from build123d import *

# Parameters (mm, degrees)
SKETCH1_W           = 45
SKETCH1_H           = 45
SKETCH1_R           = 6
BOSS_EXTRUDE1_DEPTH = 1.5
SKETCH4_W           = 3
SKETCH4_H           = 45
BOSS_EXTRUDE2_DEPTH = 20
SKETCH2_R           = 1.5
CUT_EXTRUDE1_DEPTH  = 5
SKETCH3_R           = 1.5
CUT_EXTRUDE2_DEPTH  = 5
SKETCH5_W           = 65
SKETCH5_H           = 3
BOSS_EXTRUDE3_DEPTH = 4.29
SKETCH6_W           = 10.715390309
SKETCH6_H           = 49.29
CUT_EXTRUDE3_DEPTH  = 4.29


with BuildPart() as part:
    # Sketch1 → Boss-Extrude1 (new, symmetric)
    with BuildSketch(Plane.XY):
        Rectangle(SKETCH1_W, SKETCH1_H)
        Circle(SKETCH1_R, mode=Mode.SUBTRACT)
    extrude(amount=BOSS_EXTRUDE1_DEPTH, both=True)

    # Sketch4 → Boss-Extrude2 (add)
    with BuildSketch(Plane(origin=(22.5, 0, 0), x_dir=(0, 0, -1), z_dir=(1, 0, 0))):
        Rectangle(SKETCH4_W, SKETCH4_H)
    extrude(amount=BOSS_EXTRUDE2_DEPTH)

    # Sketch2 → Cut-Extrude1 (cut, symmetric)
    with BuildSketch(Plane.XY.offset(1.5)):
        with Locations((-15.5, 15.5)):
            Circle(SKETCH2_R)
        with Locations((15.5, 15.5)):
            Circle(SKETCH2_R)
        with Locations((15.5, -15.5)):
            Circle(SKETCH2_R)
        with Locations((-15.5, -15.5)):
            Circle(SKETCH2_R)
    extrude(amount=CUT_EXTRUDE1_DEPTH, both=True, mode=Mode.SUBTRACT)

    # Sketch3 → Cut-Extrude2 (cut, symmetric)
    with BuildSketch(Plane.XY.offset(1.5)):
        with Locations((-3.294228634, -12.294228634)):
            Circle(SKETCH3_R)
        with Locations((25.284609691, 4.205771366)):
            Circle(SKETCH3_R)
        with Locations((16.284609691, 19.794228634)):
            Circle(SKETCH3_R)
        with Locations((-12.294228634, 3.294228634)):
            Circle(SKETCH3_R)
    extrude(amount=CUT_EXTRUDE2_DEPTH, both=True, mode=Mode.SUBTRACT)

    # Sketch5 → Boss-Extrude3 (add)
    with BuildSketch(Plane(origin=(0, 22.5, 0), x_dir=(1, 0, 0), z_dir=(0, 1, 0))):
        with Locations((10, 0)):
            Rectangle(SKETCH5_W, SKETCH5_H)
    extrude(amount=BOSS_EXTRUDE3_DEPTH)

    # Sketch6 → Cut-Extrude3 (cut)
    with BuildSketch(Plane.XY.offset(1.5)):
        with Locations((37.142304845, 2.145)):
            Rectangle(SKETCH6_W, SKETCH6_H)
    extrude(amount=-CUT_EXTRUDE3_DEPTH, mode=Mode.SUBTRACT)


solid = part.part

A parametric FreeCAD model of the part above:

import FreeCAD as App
import Part
import Sketcher

doc = App.newDocument("Part")
body = doc.addObject("PartDesign::Body", "Body")

# Sketch on XY plane
sketch1 = doc.addObject("Sketcher::SketchObject", "Sketch")
body.addObject(sketch1)
sketch1.AttachmentSupport = (doc.XY_Plane, [""])
sketch1.MapMode = "FlatFace"
sketch1.addGeometry([
    Part.LineSegment(App.Vector(-22, 22, 0), App.Vector(-22, -22, 0)),  # 0
    Part.LineSegment(App.Vector(-22, -22, 0), App.Vector(22, -22, 0)),  # 1
    Part.LineSegment(App.Vector(22, -22, 0), App.Vector(22, 22, 0)),  # 2
    Part.LineSegment(App.Vector(22, 22, 0), App.Vector(-22, 22, 0)),  # 3
    Part.Circle(App.Vector(0, 0, 0), App.Vector(0, 0, 1), 6),  # 4
], False)
sketch1.addConstraint([
    Sketcher.Constraint("Coincident", 0, 2, 1, 1),
    Sketcher.Constraint("Coincident", 1, 2, 2, 1),
    Sketcher.Constraint("Coincident", 2, 2, 3, 1),
    Sketcher.Constraint("Coincident", 3, 2, 0, 1),
    Sketcher.Constraint("Vertical", 0),
    Sketcher.Constraint("Horizontal", 1),
    Sketcher.Constraint("Vertical", 2),
    Sketcher.Constraint("Horizontal", 3),
    Sketcher.Constraint("Coincident", 4, 3, -1, 1),
    Sketcher.Constraint("Symmetric", 0, 2, 2, 2, -1, 1),
    Sketcher.Constraint("Equal", 3, 0),
    Sketcher.Constraint("Diameter", 4, 12.0),
    Sketcher.Constraint("DistanceX", 1, 1, 1, 2, 45.0),
])
pad1 = doc.addObject("PartDesign::Pad", "Pad")
body.addObject(pad1)
pad1.Profile = sketch1
pad1.Length = 3
pad1.Midplane = True

# Sketch on YZ plane
sketch2 = doc.addObject("Sketcher::SketchObject", "Sketch001")
body.addObject(sketch2)
sketch2.AttachmentSupport = (doc.YZ_Plane, [""])
sketch2.MapMode = "FlatFace"
sketch2.AttachmentOffset = App.Placement(App.Vector(0, 0, 22.5), App.Rotation())
sketch2.addGeometry([
    Part.LineSegment(App.Vector(22.5, 1.5, 0), App.Vector(-22.5, 1.5, 0)),
    Part.LineSegment(App.Vector(-22.5, 1.5, 0), App.Vector(-22.5, -1.5, 0)),
    Part.LineSegment(App.Vector(-22.5, -1.5, 0), App.Vector(22.5, -1.5, 0)),
    Part.LineSegment(App.Vector(22.5, -1.5, 0), App.Vector(22.5, 1.5, 0)),
], False)
sketch2.addConstraint([
    Sketcher.Constraint("Coincident", 0, 2, 1, 1),
    Sketcher.Constraint("Coincident", 1, 2, 2, 1),
    Sketcher.Constraint("Coincident", 2, 2, 3, 1),
    Sketcher.Constraint("Coincident", 3, 2, 0, 1),
    Sketcher.Constraint("Horizontal", 0),
    Sketcher.Constraint("Vertical", 1),
    Sketcher.Constraint("Horizontal", 2),
    Sketcher.Constraint("Vertical", 3),
    Sketcher.Constraint("Symmetric", 0, 2, 2, 2, -1, 1),
    Sketcher.Constraint("DistanceX", 0, 2, 0, 1, 45.0),
    Sketcher.Constraint("DistanceY", 1, 2, 1, 1, 3.0),
])
pad2 = doc.addObject("PartDesign::Pad", "Pad001")
body.addObject(pad2)
pad2.Profile = sketch2
pad2.Length = 20

# Sketch on XY plane
sketch3 = doc.addObject("Sketcher::SketchObject", "Sketch002")
body.addObject(sketch3)
sketch3.AttachmentSupport = (doc.XY_Plane, [""])
sketch3.MapMode = "FlatFace"
sketch3.AttachmentOffset = App.Placement(App.Vector(0, 0, 1.5), App.Rotation())
sketch3.addGeometry([
    Part.Circle(App.Vector(-15.5, 15.5, 0), App.Vector(0, 0, 1), 1.5),
    Part.Circle(App.Vector(15.5, 15.5, 0), App.Vector(0, 0, 1), 1.5),
    Part.Circle(App.Vector(15.5, -15.5, 0), App.Vector(0, 0, 1), 1.5),
    Part.Circle(App.Vector(-15.5, -15.5, 0), App.Vector(0, 0, 1), 1.5),
], False)
sketch3.addConstraint([
    Sketcher.Constraint("Equal", 0, 1),
    Sketcher.Constraint("Equal", 1, 2),
    Sketcher.Constraint("Equal", 2, 3),
    Sketcher.Constraint("Symmetric", 0, 3, 2, 3, -1, 1),
    Sketcher.Constraint("Symmetric", 1, 3, 3, 3, -1, 1),
    Sketcher.Constraint("Symmetric", 0, 3, 1, 3, -2),
    Sketcher.Constraint("Diameter", 0, 3.0),
    Sketcher.Constraint("DistanceX", 0, 3, 1, 3, 31.0),
    Sketcher.Constraint("DistanceY", 2, 3, 1, 3, 31.0),
])
pocket1 = doc.addObject("PartDesign::Pocket", "Pocket")
body.addObject(pocket1)
pocket1.Profile = sketch3
pocket1.Length = 10
pocket1.Midplane = True

# Sketch on XY plane
sketch4 = doc.addObject("Sketcher::SketchObject", "Sketch003")
body.addObject(sketch4)
sketch4.AttachmentSupport = (doc.XY_Plane, [""])
sketch4.MapMode = "FlatFace"
sketch4.AttachmentOffset = App.Placement(App.Vector(0, 0, 1.5), App.Rotation())
sketch4.addGeometry([
    Part.Circle(App.Vector(-3.3, -12.3, 0), App.Vector(0, 0, 1), 1.5),
    Part.Circle(App.Vector(25.3, 4.2, 0), App.Vector(0, 0, 1), 1.5),
    Part.Circle(App.Vector(16.3, 19.8, 0), App.Vector(0, 0, 1), 1.5),
    Part.Circle(App.Vector(-12.3, 3.3, 0), App.Vector(0, 0, 1), 1.5),
], False)
sketch4.addConstraint([
    Sketcher.Constraint("Equal", 0, 1),
    Sketcher.Constraint("Equal", 1, 2),
    Sketcher.Constraint("Equal", 2, 3),
    Sketcher.Constraint("Diameter", 0, 3.0),
    Sketcher.Constraint("DistanceX", 2, 3, 1, 3, 9.0),
    Sketcher.Constraint("DistanceX", 3, 3, 0, 3, 9.0),
    Sketcher.Constraint("DistanceY", 0, 3, 1, 3, 16.5),
    Sketcher.Constraint("DistanceY", 3, 3, 2, 3, 16.5),
    Sketcher.Constraint("DistanceX", 0, 3, -1, 1, 3.294229),
    Sketcher.Constraint("DistanceY", 0, 3, -1, 1, 12.294229),
    Sketcher.Constraint("DistanceX", -1, 1, 1, 3, 25.28461),
    Sketcher.Constraint("DistanceY", -1, 1, 2, 3, 19.794229),
])
pocket2 = doc.addObject("PartDesign::Pocket", "Pocket001")
body.addObject(pocket2)
pocket2.Profile = sketch4
pocket2.Length = 10
pocket2.Midplane = True

# Sketch on XZ plane
sketch5 = doc.addObject("Sketcher::SketchObject", "Sketch004")
body.addObject(sketch5)
sketch5.AttachmentSupport = (doc.XZ_Plane, [""])
sketch5.MapMode = "FlatFace"
sketch5.AttachmentOffset = App.Placement(App.Vector(0, 0, -22.5), App.Rotation())
sketch5.addGeometry([
    Part.LineSegment(App.Vector(-22.5, -1.5, 0), App.Vector(-22.5, 1.5, 0)),
    Part.LineSegment(App.Vector(-22.5, 1.5, 0), App.Vector(42.5, 1.5, 0)),
    Part.LineSegment(App.Vector(42.5, 1.5, 0), App.Vector(42.5, -1.5, 0)),
    Part.LineSegment(App.Vector(42.5, -1.5, 0), App.Vector(-22.5, -1.5, 0)),
], False)
sketch5.addConstraint([
    Sketcher.Constraint("Coincident", 0, 2, 1, 1),
    Sketcher.Constraint("Coincident", 1, 2, 2, 1),
    Sketcher.Constraint("Coincident", 2, 2, 3, 1),
    Sketcher.Constraint("Coincident", 3, 2, 0, 1),
    Sketcher.Constraint("Vertical", 0),
    Sketcher.Constraint("Horizontal", 1),
    Sketcher.Constraint("Vertical", 2),
    Sketcher.Constraint("Horizontal", 3),
    Sketcher.Constraint("DistanceX", 1, 1, 1, 2, 65.0),
    Sketcher.Constraint("DistanceY", 0, 1, 0, 2, 3.0),
    Sketcher.Constraint("DistanceX", 0, 2, -1, 1, 22.5),
    Sketcher.Constraint("DistanceY", -1, 1, 0, 2, 1.5),
])
pad3 = doc.addObject("PartDesign::Pad", "Pad002")
body.addObject(pad3)
pad3.Profile = sketch5
pad3.Length = 4.29
pad3.Reversed = True

# Sketch on XY plane
sketch6 = doc.addObject("Sketcher::SketchObject", "Sketch005")
body.addObject(sketch6)
sketch6.AttachmentSupport = (doc.XY_Plane, [""])
sketch6.MapMode = "FlatFace"
sketch6.AttachmentOffset = App.Placement(App.Vector(0, 0, 1.5), App.Rotation())
sketch6.addGeometry([
    Part.LineSegment(App.Vector(32, 27, 0), App.Vector(32, -22, 0)),
    Part.LineSegment(App.Vector(32, -22, 0), App.Vector(42, -22, 0)),
    Part.LineSegment(App.Vector(42, -22, 0), App.Vector(42, 27, 0)),
    Part.LineSegment(App.Vector(42, 27, 0), App.Vector(32, 27, 0)),
], False)
sketch6.addConstraint([
    Sketcher.Constraint("Coincident", 0, 2, 1, 1),
    Sketcher.Constraint("Coincident", 1, 2, 2, 1),
    Sketcher.Constraint("Coincident", 2, 2, 3, 1),
    Sketcher.Constraint("Coincident", 3, 2, 0, 1),
    Sketcher.Constraint("Vertical", 0),
    Sketcher.Constraint("Horizontal", 1),
    Sketcher.Constraint("Vertical", 2),
    Sketcher.Constraint("Horizontal", 3),
    Sketcher.Constraint("DistanceY", 0, 2, 0, 1, 49.29),
    Sketcher.Constraint("DistanceY", 0, 2, -1, 1, 22.5),
    Sketcher.Constraint("DistanceX", -1, 1, 1, 2, 42.5),
    Sketcher.Constraint("DistanceX", 1, 1, 1, 2, 10.71539),
])
pocket3 = doc.addObject("PartDesign::Pocket", "Pocket002")
body.addObject(pocket3)
pocket3.Profile = sketch6
pocket3.Length = 4.29

doc.recompute()
